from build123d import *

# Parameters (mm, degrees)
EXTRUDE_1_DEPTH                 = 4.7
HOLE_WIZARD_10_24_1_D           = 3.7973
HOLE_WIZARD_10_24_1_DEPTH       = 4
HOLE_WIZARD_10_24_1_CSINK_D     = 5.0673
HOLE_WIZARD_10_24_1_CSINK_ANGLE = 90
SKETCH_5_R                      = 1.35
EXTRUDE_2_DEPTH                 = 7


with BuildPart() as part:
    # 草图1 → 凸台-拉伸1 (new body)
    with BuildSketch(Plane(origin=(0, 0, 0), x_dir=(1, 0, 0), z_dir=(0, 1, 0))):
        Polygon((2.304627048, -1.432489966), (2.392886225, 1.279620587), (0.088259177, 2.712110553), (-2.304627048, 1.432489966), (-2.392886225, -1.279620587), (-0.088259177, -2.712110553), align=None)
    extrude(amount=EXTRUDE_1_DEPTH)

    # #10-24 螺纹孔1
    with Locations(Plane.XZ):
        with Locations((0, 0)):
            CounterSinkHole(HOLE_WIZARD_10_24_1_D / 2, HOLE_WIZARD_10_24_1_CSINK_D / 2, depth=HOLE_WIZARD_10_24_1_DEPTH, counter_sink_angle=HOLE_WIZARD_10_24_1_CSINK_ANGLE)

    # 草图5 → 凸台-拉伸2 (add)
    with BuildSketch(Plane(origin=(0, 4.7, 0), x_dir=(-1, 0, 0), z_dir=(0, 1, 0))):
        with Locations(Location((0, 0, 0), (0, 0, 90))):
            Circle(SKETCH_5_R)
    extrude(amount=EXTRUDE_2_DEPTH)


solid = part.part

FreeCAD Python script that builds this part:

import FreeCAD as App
import Part
import Sketcher

doc = App.newDocument("Part")
body = doc.addObject("PartDesign::Body", "Body")

# Sketch on XZ plane
sketch1 = body.newObject("Sketcher::SketchObject", "Sketch")
sketch1.AttachmentSupport = (doc.getObject("XZ_Plane"), [""])
sketch1.MapMode = "FlatFace"
sketch1.addGeometry([
    Part.LineSegment(App.Vector(2.3, 1.4, 0), App.Vector(2.4, -1.3, 0)),  # 0
    Part.LineSegment(App.Vector(2.4, -1.3, 0), App.Vector(0.1, -2.7, 0)),  # 1
    Part.LineSegment(App.Vector(0.1, -2.7, 0), App.Vector(-2.3, -1.4, 0)),  # 2
    Part.LineSegment(App.Vector(-2.3, -1.4, 0), App.Vector(-2.4, 1.3, 0)),  # 3
    Part.LineSegment(App.Vector(-2.4, 1.3, 0), App.Vector(-0.1, 2.7, 0)),  # 4
    Part.LineSegment(App.Vector(-0.1, 2.7, 0), App.Vector(2.3, 1.4, 0)),  # 5
], False)
sketch1.addConstraint([
    Sketcher.Constraint("Coincident", 0, 2, 1, 1),
    Sketcher.Constraint("Coincident", 1, 2, 2, 1),
    Sketcher.Constraint("Coincident", 2, 2, 3, 1),
    Sketcher.Constraint("Coincident", 3, 2, 4, 1),
    Sketcher.Constraint("Coincident", 4, 2, 5, 1),
    Sketcher.Constraint("Coincident", 5, 2, 0, 1),
    Sketcher.Constraint("Symmetric", 0, 2, 3, 2, -1, 1),
    Sketcher.Constraint("Symmetric", 1, 2, 4, 2, -1, 1),
    Sketcher.Constraint("Symmetric", 2, 2, 5, 2, -1, 1),
    Sketcher.Constraint("Equal", 0, 1),
    Sketcher.Constraint("Equal", 1, 2),
    Sketcher.Constraint("DistanceY", 2, 2, 4, 2, 4.144601),
    Sketcher.Constraint("DistanceY", 0, 2, -1, 1, 1.279621),
    Sketcher.Constraint("DistanceX", -1, 1, 1, 2, 0.088259),
    Sketcher.Constraint("DistanceY", 1, 2, -1, 1, 2.712111),
])
pad1 = body.newObject("PartDesign::Pad", "Pad")
pad1.Profile = sketch1
pad1.Length = 4.7
pad1.Reversed = True

# Sketch on XZ plane
sketch2 = body.newObject("Sketcher::SketchObject", "Sketch001")
sketch2.AttachmentSupport = (doc.getObject("XZ_Plane"), [""])
sketch2.MapMode = "FlatFace"
sketch2.addGeometry(Part.Circle(App.Vector(0, 0, 0), App.Vector(0, 0, 1), 1.9), False)
sketch2.addConstraint([
    Sketcher.Constraint("Coincident", 0, 3, -1, 1),
    Sketcher.Constraint("Diameter", 0, 3.7973),
])
doc.recompute()
hole = body.newObject("PartDesign::Hole", "Hole")
hole.Profile = sketch2
hole.ThreadType = "None"
hole.Diameter = 3.7973
hole.DepthType = "Dimension"
hole.Depth = 4
hole.DrillPoint = "Flat"
hole.HoleCutType = "Countersink"
hole.HoleCutDiameter = 5.0673
hole.HoleCutCountersinkAngle = 90

# Sketch on XZ plane
sketch3 = body.newObject("Sketcher::SketchObject", "Sketch002")
sketch3.AttachmentSupport = (doc.getObject("XZ_Plane"), [""])
sketch3.MapMode = "FlatFace"
sketch3.AttachmentOffset = App.Placement(App.Vector(0, 0, -4.7), App.Rotation())
sketch3.addGeometry(Part.Circle(App.Vector(0, 0, 0), App.Vector(0, 0, 1), 1.4), False)
sketch3.addConstraint([
    Sketcher.Constraint("Coincident", 0, 3, -1, 1),
    Sketcher.Constraint("Diameter", 0, 2.7),
])
pad2 = body.newObject("PartDesign::Pad", "Pad001")
pad2.Profile = sketch3
pad2.Length = 7
pad2.Reversed = True

doc.recompute()
